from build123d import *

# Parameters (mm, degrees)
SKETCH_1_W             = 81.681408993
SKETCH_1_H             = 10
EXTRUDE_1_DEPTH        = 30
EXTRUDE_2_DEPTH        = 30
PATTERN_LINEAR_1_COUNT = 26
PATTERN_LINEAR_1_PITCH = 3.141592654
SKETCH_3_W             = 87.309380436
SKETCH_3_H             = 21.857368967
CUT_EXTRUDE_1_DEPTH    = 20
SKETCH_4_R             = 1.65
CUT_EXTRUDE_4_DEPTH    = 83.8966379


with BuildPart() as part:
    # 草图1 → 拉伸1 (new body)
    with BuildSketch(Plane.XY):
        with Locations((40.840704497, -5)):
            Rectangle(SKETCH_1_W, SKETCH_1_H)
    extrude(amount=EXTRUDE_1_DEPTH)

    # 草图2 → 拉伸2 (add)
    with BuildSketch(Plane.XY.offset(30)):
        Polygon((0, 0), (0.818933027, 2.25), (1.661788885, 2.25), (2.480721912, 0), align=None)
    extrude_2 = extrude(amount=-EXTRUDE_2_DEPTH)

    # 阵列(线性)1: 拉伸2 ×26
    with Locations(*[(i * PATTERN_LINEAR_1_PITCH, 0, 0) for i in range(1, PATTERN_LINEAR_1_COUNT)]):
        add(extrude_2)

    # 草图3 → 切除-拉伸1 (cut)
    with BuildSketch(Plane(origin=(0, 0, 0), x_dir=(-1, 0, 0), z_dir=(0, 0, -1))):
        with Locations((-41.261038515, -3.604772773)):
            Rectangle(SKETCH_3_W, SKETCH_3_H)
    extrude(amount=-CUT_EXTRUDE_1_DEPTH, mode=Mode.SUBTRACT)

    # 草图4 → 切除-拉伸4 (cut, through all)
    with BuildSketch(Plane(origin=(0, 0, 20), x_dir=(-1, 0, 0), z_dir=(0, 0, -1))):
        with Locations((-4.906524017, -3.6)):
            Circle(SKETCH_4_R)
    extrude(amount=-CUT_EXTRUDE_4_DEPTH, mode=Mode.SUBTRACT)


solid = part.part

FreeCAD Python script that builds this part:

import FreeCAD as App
import Part
import Sketcher
from FreeCAD import Vector
Q = App.Units.Quantity


def add_polygon(sketch, points):
    """Adds a closed chain of lines whose ends are joined by coincident constraints."""
    first, n = sketch.GeometryCount, len(points)
    for a, b in zip(points, points[1:] + points[:1]):
        sketch.addGeometry(Part.LineSegment(App.Vector(*a, 0), App.Vector(*b, 0)), False)
    for i in range(n):
        sketch.addConstraint(Sketcher.Constraint("Coincident", first + i, 2, first + (i + 1) % n, 1))

doc = App.newDocument("Part")
body = doc.addObject("PartDesign::Body", "Body")

# Sketch on XY plane
sketch1 = doc.addObject("Sketcher::SketchObject", "Sketch")
body.addObject(sketch1)
sketch1.AttachmentSupport = (doc.XY_Plane, [""])
sketch1.MapMode = "FlatFace"
add_polygon(sketch1, [(0, 0), (0, -10), (82, -10), (82, 0)])  # lines 0-3
sketch1.addConstraint(Sketcher.Constraint("Vertical", 0))
sketch1.addConstraint(Sketcher.Constraint("Horizontal", 1))
sketch1.addConstraint(Sketcher.Constraint("Vertical", 2))
sketch1.addConstraint(Sketcher.Constraint("Horizontal", 3))
sketch1.addConstraint(Sketcher.Constraint("Coincident", 3, 2, -1, 1))
sketch1.addConstraint(Sketcher.Constraint("DistanceY", 0, 2, 0, 1, 10.0))
sketch1.addConstraint(Sketcher.Constraint("DistanceX", 1, 1, 1, 2, 81.681409))
pad1 = doc.addObject("PartDesign::Pad", "Pad")
body.addObject(pad1)
pad1.Profile = sketch1
pad1.Length = 30

# Sketch on XY plane
sketch2 = doc.addObject("Sketcher::SketchObject", "Sketch001")
body.addObject(sketch2)
sketch2.AttachmentSupport = (doc.XY_Plane, [""])
sketch2.MapMode = "FlatFace"
sketch2.AttachmentOffset = App.Placement(Vector(0, 0, 30), App.Rotation())
add_polygon(sketch2, [(0.8, 2.2), (0, 0), (2.5, 0), (1.7, 2.2)])  # lines 0-3
sketch2.addConstraint(Sketcher.Constraint("Horizontal", 1))
sketch2.addConstraint(Sketcher.Constraint("Horizontal", 3))
sketch2.addConstraint(Sketcher.Constraint("Coincident", 0, 2, -1, 1))
sketch2.addConstraint(Sketcher.Constraint("Equal", 0, 2))
sketch2.addConstraint(Sketcher.Constraint("Angle", 0, Q("-110 deg")))
sketch2.addConstraint(Sketcher.Constraint("DistanceY", -1, 1, 2, 2, 2.25))
sketch2.addConstraint(Sketcher.Constraint("DistanceX", 1, 1, 1, 2, 2.480722))
pad2 = doc.addObject("PartDesign::Pad", "Pad001")
body.addObject(pad2)
pad2.Profile = sketch2
pad2.Length = 30
pad2.Reversed = True
doc.recompute()

linearpattern = doc.addObject("PartDesign::LinearPattern", "LinearPattern")
body.addObject(linearpattern)
linearpattern.Originals = [pad2]
linearpattern.Direction = (doc.X_Axis, [""])
linearpattern.Mode = "offset"
linearpattern.Offset = 3.141593
linearpattern.Occurrences = 26
body.Tip = linearpattern

# Sketch on XY plane
sketch3 = doc.addObject("Sketcher::SketchObject", "Sketch002")
body.addObject(sketch3)
sketch3.AttachmentSupport = (doc.XY_Plane, [""])
sketch3.MapMode = "FlatFace"
add_polygon(sketch3, [(85, 7), (85, -15), (-2, -15), (-2, 7)])  # lines 0-3
sketch3.addConstraint(Sketcher.Constraint("Vertical", 0))
sketch3.addConstraint(Sketcher.Constraint("Horizontal", 1))
sketch3.addConstraint(Sketcher.Constraint("Vertical", 2))
sketch3.addConstraint(Sketcher.Constraint("Horizontal", 3))
sketch3.addConstraint(Sketcher.Constraint("DistanceX", 1, 2, 1, 1, 87.30938))
sketch3.addConstraint(Sketcher.Constraint("DistanceY", 0, 2, 0, 1, 21.857369))
sketch3.addConstraint(Sketcher.Constraint("DistanceX", -1, 1, 0, 2, 84.915729))
sketch3.addConstraint(Sketcher.Constraint("DistanceY", -1, 1, 2, 2, 7.323912))
pocket1 = doc.addObject("PartDesign::Pocket", "Pocket")
body.addObject(pocket1)
pocket1.Profile = sketch3
pocket1.Length = 20
pocket1.Reversed = True

# Sketch on XY plane
sketch4 = doc.addObject("Sketcher::SketchObject", "Sketch003")
body.addObject(sketch4)
sketch4.AttachmentSupport = (doc.XY_Plane, [""])
sketch4.MapMode = "FlatFace"
sketch4.AttachmentOffset = App.Placement(Vector(0, 0, 20), App.Rotation())
sketch4.addGeometry(Part.Circle(Vector(4.9, -3.6, 0), Vector(0, 0, 1), 1.6), False)
sketch4.addConstraint(Sketcher.Constraint("Diameter", 0, 3.3))
sketch4.addConstraint(Sketcher.Constraint("DistanceY", 0, 3, -1, 1, 3.6))
sketch4.addConstraint(Sketcher.Constraint("DistanceX", -1, 1, 0, 3, 4.906524))
pocket2 = doc.addObject("PartDesign::Pocket", "Pocket001")
body.addObject(pocket2)
pocket2.Profile = sketch4
pocket2.Type = "ThroughAll"
pocket2.Reversed = True

doc.recompute()
